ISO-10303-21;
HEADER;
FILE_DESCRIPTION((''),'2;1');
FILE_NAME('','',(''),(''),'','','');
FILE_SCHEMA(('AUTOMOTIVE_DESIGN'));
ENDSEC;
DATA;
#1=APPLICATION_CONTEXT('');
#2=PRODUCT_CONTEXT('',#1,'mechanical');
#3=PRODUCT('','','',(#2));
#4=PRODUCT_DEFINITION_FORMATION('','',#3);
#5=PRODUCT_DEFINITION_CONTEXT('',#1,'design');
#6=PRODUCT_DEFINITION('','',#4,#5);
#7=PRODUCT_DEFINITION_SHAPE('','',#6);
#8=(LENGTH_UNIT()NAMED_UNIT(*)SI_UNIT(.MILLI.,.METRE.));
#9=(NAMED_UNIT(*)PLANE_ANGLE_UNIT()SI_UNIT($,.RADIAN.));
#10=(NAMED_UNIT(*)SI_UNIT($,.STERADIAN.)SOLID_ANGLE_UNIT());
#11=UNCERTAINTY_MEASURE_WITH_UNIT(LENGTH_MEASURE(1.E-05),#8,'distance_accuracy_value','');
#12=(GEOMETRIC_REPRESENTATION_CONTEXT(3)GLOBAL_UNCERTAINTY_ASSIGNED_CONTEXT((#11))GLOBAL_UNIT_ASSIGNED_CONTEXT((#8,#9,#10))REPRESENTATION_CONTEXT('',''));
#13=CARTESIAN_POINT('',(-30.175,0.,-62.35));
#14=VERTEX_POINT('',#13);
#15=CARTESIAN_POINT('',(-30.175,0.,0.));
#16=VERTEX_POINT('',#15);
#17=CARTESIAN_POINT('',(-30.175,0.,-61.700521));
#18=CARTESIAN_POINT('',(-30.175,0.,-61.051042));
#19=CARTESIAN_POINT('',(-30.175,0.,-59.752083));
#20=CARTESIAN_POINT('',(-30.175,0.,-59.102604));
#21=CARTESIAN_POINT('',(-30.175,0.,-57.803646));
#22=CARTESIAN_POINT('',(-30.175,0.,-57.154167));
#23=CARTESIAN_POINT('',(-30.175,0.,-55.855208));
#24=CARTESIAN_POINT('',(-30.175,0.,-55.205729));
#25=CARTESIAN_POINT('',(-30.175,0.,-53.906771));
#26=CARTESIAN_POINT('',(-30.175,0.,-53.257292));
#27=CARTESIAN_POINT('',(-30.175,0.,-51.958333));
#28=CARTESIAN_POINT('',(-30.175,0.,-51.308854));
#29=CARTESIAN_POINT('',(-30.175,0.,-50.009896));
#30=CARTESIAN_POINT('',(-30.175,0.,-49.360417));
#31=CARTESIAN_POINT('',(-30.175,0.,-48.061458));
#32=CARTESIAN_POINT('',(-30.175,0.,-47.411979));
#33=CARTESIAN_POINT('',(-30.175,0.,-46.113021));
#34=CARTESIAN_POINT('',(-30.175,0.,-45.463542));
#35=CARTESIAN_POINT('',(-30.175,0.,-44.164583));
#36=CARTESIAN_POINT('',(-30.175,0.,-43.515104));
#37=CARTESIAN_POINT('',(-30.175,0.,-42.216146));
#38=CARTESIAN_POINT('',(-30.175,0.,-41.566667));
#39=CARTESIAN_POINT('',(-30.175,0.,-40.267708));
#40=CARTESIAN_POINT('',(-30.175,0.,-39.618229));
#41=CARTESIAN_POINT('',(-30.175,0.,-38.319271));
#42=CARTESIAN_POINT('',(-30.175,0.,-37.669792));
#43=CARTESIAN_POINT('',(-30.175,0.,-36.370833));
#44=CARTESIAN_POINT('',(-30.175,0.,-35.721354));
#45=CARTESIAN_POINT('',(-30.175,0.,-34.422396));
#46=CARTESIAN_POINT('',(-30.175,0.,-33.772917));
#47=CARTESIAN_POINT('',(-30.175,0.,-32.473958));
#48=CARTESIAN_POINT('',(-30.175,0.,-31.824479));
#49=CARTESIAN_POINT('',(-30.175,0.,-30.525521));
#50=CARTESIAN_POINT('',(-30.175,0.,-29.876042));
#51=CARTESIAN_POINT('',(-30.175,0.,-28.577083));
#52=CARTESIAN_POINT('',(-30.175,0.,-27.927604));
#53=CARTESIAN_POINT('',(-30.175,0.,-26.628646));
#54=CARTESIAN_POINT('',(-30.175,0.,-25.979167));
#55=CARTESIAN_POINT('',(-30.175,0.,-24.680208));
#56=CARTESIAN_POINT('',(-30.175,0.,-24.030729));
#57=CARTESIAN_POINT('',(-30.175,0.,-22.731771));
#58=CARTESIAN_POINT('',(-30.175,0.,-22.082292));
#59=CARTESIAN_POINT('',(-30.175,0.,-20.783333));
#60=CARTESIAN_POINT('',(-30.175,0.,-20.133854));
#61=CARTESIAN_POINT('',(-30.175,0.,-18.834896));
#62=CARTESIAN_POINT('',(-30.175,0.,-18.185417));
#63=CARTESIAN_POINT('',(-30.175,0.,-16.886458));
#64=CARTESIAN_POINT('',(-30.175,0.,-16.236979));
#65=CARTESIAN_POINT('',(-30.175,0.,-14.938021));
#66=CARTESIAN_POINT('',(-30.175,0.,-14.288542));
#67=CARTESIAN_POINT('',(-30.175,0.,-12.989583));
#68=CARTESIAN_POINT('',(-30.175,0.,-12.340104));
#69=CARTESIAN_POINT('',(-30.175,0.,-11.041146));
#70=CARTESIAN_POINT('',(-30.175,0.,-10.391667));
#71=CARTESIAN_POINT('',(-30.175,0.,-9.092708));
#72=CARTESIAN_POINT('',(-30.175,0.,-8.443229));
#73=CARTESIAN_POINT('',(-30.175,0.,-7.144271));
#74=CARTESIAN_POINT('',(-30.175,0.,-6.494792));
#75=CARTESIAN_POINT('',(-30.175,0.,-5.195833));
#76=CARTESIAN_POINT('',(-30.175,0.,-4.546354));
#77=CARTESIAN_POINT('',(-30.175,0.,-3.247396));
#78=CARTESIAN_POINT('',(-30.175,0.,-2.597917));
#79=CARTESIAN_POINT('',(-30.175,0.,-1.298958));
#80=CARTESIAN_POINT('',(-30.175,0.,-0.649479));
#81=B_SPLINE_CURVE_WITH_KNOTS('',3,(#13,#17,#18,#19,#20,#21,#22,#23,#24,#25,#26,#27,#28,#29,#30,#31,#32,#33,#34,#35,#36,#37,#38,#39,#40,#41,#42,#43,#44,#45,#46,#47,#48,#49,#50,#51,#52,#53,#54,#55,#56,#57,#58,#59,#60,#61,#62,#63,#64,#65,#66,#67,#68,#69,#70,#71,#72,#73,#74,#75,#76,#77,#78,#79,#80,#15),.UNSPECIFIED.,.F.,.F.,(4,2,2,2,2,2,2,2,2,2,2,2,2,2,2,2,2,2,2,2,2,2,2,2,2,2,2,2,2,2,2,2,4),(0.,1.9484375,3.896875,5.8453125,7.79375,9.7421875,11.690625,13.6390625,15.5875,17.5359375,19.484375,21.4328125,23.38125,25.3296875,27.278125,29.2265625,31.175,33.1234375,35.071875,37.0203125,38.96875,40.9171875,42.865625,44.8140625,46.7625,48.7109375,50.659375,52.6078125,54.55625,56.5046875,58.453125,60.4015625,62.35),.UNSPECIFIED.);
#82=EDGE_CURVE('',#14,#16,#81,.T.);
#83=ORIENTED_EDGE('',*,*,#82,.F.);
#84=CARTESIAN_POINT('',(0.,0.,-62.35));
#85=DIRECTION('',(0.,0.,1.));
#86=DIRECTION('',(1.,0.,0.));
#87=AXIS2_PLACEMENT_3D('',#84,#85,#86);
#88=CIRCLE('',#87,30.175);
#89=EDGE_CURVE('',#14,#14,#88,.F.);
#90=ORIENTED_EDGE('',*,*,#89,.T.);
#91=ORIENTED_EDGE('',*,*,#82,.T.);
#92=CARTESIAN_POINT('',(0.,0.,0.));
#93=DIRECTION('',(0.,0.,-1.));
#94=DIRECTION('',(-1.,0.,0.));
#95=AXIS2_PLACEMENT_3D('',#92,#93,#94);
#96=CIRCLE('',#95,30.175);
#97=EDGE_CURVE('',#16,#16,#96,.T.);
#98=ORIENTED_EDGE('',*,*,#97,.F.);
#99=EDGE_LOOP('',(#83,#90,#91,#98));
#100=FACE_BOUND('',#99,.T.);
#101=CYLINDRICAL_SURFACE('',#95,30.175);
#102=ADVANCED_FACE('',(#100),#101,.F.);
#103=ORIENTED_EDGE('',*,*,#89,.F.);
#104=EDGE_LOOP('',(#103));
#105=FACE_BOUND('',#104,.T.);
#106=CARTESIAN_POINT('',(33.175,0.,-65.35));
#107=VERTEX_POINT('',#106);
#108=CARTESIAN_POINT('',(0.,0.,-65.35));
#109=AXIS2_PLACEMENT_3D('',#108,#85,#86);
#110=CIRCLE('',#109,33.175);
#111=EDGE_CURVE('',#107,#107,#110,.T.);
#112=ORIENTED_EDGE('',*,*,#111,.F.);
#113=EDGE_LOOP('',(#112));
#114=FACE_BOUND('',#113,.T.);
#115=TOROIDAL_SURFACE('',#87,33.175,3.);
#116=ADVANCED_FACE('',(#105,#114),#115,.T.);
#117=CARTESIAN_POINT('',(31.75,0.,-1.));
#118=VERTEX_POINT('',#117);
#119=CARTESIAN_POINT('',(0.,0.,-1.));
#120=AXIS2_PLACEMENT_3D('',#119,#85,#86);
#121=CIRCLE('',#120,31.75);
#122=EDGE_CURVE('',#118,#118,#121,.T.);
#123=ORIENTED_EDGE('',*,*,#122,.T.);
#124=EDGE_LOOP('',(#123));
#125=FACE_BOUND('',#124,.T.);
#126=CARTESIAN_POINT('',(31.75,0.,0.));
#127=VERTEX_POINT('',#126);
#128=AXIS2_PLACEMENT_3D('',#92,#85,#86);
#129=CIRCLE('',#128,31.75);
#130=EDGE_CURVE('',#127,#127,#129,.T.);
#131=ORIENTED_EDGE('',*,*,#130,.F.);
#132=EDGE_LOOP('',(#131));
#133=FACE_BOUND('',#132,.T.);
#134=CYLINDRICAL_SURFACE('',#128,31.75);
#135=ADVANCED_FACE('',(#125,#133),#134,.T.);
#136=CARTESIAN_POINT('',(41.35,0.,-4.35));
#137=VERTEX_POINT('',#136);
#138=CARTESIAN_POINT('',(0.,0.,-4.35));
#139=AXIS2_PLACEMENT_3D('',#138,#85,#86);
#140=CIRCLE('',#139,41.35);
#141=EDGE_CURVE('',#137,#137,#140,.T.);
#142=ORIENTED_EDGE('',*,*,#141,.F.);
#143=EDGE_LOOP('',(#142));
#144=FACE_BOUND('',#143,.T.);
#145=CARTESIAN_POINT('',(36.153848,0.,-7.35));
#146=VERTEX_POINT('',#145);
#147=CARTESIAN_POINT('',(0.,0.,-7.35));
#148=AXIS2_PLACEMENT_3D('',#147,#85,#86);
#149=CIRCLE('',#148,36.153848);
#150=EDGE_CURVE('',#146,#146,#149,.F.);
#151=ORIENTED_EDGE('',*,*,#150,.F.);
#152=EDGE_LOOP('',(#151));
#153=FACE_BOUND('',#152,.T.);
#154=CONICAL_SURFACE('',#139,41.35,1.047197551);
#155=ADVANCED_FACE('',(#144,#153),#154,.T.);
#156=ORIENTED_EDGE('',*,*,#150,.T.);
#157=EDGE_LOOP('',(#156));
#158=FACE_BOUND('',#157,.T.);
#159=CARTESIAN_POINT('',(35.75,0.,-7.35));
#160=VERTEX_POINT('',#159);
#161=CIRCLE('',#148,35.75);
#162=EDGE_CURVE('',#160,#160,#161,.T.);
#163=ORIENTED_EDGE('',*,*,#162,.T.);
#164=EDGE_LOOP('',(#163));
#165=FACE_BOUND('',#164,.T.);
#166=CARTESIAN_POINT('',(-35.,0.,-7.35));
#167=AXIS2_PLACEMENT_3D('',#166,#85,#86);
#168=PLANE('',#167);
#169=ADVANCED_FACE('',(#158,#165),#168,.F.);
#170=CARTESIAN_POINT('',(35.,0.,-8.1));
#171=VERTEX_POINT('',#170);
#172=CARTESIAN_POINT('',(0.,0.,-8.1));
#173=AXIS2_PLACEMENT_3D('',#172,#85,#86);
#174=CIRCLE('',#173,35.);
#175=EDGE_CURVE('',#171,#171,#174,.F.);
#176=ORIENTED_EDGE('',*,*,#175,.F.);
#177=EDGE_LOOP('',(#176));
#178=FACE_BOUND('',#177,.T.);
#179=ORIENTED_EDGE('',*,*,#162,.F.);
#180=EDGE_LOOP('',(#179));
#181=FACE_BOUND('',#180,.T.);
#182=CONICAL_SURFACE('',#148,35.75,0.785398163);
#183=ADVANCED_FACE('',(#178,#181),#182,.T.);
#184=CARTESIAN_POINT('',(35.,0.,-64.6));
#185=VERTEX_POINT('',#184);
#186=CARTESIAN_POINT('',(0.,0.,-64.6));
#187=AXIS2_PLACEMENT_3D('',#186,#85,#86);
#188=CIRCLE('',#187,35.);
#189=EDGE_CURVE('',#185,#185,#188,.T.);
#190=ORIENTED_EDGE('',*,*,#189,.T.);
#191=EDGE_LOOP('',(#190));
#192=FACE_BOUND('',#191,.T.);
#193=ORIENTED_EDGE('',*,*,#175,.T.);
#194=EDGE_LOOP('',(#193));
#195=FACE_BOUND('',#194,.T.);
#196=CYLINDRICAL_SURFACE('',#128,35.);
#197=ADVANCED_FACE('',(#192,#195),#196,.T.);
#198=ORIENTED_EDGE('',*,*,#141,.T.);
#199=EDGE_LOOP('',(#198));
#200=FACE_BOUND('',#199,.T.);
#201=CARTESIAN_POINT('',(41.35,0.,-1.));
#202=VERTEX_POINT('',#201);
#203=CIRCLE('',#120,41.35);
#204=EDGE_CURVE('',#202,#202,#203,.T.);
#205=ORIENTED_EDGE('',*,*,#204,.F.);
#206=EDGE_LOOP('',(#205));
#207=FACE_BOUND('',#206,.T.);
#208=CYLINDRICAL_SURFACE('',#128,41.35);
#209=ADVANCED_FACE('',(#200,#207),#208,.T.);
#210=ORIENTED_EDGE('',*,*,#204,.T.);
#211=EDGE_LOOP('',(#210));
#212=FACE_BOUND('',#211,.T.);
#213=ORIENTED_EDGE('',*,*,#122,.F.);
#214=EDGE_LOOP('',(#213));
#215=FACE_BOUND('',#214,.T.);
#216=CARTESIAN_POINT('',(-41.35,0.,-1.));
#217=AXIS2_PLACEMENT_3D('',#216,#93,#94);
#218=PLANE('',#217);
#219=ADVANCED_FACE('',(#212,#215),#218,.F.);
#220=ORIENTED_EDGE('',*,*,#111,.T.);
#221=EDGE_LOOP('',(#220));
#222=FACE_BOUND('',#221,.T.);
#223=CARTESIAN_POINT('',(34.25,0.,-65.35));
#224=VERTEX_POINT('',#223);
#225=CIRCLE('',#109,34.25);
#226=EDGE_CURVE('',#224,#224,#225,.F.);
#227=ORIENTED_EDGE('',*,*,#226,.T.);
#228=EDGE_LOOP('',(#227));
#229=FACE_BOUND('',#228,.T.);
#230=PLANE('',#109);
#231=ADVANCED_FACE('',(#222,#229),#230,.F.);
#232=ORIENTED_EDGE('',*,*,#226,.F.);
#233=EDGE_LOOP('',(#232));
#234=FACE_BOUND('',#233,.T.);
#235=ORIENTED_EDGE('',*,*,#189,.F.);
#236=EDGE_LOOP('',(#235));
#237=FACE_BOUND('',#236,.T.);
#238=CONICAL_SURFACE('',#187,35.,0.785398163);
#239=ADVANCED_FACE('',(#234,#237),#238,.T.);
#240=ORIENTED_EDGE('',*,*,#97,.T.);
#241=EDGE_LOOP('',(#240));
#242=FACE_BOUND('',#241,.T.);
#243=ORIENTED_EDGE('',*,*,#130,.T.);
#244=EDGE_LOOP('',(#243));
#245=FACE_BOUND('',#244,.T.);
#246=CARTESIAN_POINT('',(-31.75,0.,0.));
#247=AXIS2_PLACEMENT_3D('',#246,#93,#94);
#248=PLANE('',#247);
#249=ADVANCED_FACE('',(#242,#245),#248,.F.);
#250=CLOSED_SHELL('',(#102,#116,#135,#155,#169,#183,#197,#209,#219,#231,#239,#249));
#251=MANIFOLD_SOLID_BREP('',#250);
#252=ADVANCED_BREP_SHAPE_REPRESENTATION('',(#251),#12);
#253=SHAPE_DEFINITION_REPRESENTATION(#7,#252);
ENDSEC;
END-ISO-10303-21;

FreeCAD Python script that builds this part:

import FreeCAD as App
import Part
import Sketcher

V = App.Vector
Q = App.Units.Quantity


def edges_at(feature, points):
    """Names of the edges that pass closest to the given points."""
    edges = feature.Shape.Edges
    near = lambda p: min(range(len(edges)), key=lambda i: edges[i].distToShape(Part.Vertex(*p))[0])
    return sorted({f"Edge{near(p) + 1}" for p in points})


def add_polygon(sketch, points):
    """Adds a closed chain of lines whose ends are joined by coincident constraints."""
    first, n = sketch.GeometryCount, len(points)
    for a, b in zip(points, points[1:] + points[:1]):
        sketch.addGeometry(Part.LineSegment(App.Vector(*a, 0), App.Vector(*b, 0)), False)
    for i in range(n):
        sketch.addConstraint(Sketcher.Constraint("Coincident", first + i, 2, first + (i + 1) % n, 1))

doc = App.newDocument("Part")
params = doc.addObject("Spreadsheet::Sheet", "Params")
for row, (alias, value) in enumerate([
    ("sketch1_width", "35 mm"),
    ("sketch1_height", "58 mm"),
    ("sketch1_height2", "1 mm"),
    ("sketch1_width2", "9.6 mm"),
    ("sketch1_width3", "6.35 mm"),
    ("revolution_angle", "360 deg"),
    ("sketch2_diameter", "60.35 mm"),
    ("chamfer_size", "0.75 mm"),
    ("chamfer2_size", "3 mm"),
    ("chamfer2_size2", "5.196152 mm"),
    ("fillet_radius", "3 mm"),
], start=1):
    params.set(f"A{row}", alias)
    params.set(f"B{row}", "=" + value)
    params.setAlias(f"B{row}", alias)

body = doc.addObject("PartDesign::Body", "Body")

sketch1 = body.newObject("Sketcher::SketchObject", "Sketch")
sketch1.AttachmentSupport = (doc.getObject("XZ_Plane"), [""])
sketch1.MapMode = "FlatFace"
add_polygon(sketch1, [(0, 0), (0, -65.3), (-35, -65.3), (-35, -7.3), (-41.4, -7.3), (-41.4, -1), (-31.8, -1), (-31.8, 0)])
sketch1.addConstraint(Sketcher.Constraint("Vertical", 0))
sketch1.addConstraint(Sketcher.Constraint("Horizontal", 1))
sketch1.addConstraint(Sketcher.Constraint("Vertical", 2))
sketch1.addConstraint(Sketcher.Constraint("Horizontal", 3))
sketch1.addConstraint(Sketcher.Constraint("Vertical", 4))
sketch1.addConstraint(Sketcher.Constraint("Horizontal", 5))
sketch1.addConstraint(Sketcher.Constraint("Vertical", 6))
sketch1.addConstraint(Sketcher.Constraint("Horizontal", 7))
sketch1.addConstraint(Sketcher.Constraint("Coincident", 7, 2, -1, 1))
sketch1.addConstraint(Sketcher.Constraint("Equal", 3, 4))
sketch1.addConstraint(Sketcher.Constraint("DistanceX", 1, 2, 1, 1, Q("35 mm")))
sketch1.addConstraint(Sketcher.Constraint("DistanceY", 2, 1, 2, 2, Q("58 mm")))
sketch1.addConstraint(Sketcher.Constraint("DistanceY", 6, 1, 6, 2, Q("1 mm")))
sketch1.addConstraint(Sketcher.Constraint("DistanceX", 5, 1, 5, 2, Q("9.6 mm")))
sketch1.addConstraint(Sketcher.Constraint("DistanceX", 3, 2, 3, 1, Q("6.35 mm")))
sketch1.setExpression("Constraints[18]", "Params.sketch1_width")
sketch1.setExpression("Constraints[19]", "Params.sketch1_height")
sketch1.setExpression("Constraints[20]", "Params.sketch1_height2")
sketch1.setExpression("Constraints[21]", "Params.sketch1_width2")
sketch1.setExpression("Constraints[22]", "Params.sketch1_width3")
revolution = body.newObject("PartDesign::Revolution", "Revolution")
revolution.Profile = sketch1
revolution.ReferenceAxis = (sketch1, ["V_Axis"])
revolution.setExpression("Angle", "Params.revolution_angle")

sketch2 = body.newObject("Sketcher::SketchObject", "Sketch001")
sketch2.AttachmentSupport = (doc.getObject("XY_Plane"), [""])
sketch2.MapMode = "FlatFace"
sketch2.AttachmentOffset = App.Placement(V(0, 0, -65.35), App.Rotation())
sketch2.addGeometry(Part.Circle(V(0, 0, 0), V(0, 0, 1), 30), False)
sketch2.addConstraint(Sketcher.Constraint("Coincident", 0, 3, -1, 1))
sketch2.addConstraint(Sketcher.Constraint("Diameter", 0, Q("60.35 mm")))
sketch2.setExpression("Constraints[1]", "Params.sketch2_diameter")
pocket1 = body.newObject("PartDesign::Pocket", "Pocket")
pocket1.Profile = sketch2
pocket1.Type = "ThroughAll"
pocket1.Reversed = True
doc.recompute()

chamfer = body.newObject("PartDesign::Chamfer", "Chamfer")
chamfer.Base = (pocket1, edges_at(pocket1, [(-35, 0, -7.35), (-35, 0, -65.35)]))
chamfer.setExpression("Size", "Params.chamfer_size")
doc.recompute()

chamfer2 = body.newObject("PartDesign::Chamfer", "Chamfer001")
chamfer2.Base = (chamfer, edges_at(chamfer, [(-41.35, 0, -7.35)]))
chamfer2.ChamferType = "Two distances"
chamfer2.setExpression("Size", "Params.chamfer2_size")
chamfer2.setExpression("Size2", "Params.chamfer2_size2")
chamfer2.FlipDirection = True
doc.recompute()

fillet = body.newObject("PartDesign::Fillet", "Fillet")
fillet.Base = (chamfer2, edges_at(chamfer2, [(30.175, 0, -65.35)]))
fillet.setExpression("Radius", "Params.fillet_radius")

doc.recompute()
